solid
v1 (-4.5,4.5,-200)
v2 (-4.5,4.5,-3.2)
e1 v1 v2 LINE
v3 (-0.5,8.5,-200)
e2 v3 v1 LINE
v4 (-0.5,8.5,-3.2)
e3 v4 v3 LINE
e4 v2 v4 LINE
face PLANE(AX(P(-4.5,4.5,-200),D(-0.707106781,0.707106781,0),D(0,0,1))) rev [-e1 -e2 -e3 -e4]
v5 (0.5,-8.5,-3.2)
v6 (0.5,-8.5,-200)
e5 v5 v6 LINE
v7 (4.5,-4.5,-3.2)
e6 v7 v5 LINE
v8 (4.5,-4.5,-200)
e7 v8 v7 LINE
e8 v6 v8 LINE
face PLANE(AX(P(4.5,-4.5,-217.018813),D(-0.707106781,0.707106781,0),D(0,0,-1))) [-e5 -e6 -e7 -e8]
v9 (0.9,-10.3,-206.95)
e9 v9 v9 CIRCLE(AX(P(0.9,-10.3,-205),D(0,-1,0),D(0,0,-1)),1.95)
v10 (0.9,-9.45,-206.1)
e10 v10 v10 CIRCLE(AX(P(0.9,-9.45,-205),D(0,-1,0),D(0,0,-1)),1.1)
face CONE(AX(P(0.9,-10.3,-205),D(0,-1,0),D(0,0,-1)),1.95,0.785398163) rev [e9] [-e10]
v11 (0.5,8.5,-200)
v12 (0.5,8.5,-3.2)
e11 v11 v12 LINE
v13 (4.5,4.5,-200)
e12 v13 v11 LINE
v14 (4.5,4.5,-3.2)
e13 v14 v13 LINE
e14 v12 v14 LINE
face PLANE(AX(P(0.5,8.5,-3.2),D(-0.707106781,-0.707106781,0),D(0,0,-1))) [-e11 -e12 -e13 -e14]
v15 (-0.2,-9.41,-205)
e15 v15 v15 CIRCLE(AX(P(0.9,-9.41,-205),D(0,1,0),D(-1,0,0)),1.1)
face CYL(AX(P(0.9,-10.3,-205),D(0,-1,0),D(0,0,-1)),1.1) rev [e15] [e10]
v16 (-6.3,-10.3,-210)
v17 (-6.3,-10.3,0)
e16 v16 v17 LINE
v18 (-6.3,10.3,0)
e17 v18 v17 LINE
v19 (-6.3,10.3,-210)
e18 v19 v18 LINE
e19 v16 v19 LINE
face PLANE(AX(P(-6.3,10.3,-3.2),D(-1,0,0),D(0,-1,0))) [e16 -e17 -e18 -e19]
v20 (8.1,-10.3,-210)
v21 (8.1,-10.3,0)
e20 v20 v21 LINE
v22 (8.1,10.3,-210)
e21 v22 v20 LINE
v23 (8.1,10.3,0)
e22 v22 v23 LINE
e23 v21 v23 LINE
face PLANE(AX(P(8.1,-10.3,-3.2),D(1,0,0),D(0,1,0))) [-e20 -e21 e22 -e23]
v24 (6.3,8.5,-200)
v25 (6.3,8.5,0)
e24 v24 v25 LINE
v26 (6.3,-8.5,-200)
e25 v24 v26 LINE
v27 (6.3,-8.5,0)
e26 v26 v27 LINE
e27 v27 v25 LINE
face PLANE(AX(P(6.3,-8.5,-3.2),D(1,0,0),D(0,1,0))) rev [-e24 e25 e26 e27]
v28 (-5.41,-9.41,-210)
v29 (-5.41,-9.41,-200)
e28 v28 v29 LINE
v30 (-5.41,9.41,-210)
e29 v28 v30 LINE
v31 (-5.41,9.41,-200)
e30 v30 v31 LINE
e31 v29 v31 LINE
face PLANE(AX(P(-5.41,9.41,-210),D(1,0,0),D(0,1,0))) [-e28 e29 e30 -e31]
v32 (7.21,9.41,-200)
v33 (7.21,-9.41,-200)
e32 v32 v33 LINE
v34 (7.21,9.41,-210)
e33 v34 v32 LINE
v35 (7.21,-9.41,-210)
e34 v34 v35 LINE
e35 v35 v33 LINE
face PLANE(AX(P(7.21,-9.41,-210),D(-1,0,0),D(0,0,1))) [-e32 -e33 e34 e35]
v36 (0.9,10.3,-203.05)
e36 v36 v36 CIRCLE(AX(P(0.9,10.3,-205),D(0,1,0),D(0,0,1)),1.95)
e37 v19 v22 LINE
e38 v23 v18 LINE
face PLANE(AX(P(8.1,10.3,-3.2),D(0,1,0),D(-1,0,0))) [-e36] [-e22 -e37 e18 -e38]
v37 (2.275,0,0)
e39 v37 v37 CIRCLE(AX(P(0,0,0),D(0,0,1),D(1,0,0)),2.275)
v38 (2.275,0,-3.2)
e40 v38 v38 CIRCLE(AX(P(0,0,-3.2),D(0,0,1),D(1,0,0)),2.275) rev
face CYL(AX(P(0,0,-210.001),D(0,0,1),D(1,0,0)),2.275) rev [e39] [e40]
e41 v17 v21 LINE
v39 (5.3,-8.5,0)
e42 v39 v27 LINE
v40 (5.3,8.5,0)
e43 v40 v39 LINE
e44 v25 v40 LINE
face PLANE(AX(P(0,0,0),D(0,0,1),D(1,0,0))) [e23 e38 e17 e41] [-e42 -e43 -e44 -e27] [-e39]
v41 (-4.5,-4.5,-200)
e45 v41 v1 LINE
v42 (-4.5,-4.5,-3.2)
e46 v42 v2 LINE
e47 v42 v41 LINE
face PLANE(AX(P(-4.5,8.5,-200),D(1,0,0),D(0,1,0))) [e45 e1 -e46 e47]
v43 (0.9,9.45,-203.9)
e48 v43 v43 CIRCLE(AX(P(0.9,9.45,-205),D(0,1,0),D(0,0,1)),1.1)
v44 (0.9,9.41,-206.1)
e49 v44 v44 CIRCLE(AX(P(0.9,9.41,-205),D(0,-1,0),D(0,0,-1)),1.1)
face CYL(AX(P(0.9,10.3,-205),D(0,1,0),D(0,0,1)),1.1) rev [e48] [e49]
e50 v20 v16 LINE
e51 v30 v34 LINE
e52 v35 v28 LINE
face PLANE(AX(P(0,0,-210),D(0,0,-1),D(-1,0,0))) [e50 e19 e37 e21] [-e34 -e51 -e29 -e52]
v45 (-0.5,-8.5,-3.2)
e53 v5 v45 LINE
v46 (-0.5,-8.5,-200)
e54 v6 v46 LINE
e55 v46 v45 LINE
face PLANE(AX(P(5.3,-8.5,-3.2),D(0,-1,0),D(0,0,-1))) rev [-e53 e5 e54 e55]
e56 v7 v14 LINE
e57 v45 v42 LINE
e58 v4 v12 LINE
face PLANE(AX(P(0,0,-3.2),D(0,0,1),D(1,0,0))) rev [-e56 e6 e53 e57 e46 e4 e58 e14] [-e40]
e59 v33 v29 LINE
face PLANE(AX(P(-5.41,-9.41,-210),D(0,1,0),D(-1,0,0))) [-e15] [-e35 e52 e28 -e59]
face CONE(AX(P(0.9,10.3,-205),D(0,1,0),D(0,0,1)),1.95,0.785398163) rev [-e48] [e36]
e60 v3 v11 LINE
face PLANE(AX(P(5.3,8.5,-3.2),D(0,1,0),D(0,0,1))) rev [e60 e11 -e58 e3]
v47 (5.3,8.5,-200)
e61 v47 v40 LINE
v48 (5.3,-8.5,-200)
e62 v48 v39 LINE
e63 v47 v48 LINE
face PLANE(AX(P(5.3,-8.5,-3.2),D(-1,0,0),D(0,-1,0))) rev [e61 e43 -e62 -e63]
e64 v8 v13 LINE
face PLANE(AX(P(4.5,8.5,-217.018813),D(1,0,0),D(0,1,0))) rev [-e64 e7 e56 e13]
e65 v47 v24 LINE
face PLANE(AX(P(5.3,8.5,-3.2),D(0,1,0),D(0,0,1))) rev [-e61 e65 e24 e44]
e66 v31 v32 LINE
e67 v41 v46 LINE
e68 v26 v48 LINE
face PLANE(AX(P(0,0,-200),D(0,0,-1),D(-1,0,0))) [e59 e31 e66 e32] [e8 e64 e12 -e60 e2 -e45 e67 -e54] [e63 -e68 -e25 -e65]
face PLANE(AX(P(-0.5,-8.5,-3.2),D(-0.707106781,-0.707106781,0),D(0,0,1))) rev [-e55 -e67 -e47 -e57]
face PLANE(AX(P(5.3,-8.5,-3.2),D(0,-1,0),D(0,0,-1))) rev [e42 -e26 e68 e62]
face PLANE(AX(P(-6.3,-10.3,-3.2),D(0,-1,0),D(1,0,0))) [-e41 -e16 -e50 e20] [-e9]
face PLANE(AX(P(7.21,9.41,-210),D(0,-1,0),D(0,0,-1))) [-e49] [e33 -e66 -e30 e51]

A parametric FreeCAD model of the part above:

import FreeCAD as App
import Part
import Sketcher
from FreeCAD import Vector
Q = App.Units.Quantity


def edges_at(feature, points):
    """Names of the edges that pass closest to the given points."""
    edges = feature.Shape.Edges
    near = lambda p: min(range(len(edges)), key=lambda i: edges[i].distToShape(Part.Vertex(*p))[0])
    return sorted({f"Edge{near(p) + 1}" for p in points})

doc = App.newDocument("Part")
body = doc.addObject("PartDesign::Body", "Body")

# Sketch on XY plane
sketch1 = body.newObject("Sketcher::SketchObject", "Sketch")
sketch1.AttachmentSupport = (doc.getObject("XY_Plane"), [""])
sketch1.MapMode = "FlatFace"
sketch1.addGeometry(Part.LineSegment(Vector(-6.3, 10.3, 0), Vector(-6.3, -10.3, 0)), False)
sketch1.addGeometry(Part.LineSegment(Vector(-6.3, -10.3, 0), Vector(8.1, -10.3, 0)), False)
sketch1.addGeometry(Part.LineSegment(Vector(8.1, -10.3, 0), Vector(8.1, 10.3, 0)), False)
sketch1.addGeometry(Part.LineSegment(Vector(8.1, 10.3, 0), Vector(-6.3, 10.3, 0)), False)
sketch1.addGeometry(Part.LineSegment(Vector(6.3, -8.5, 0), Vector(5.3, -8.5, 0)), False)
sketch1.addGeometry(Part.LineSegment(Vector(5.3, -8.5, 0), Vector(5.3, 8.5, 0)), False)
sketch1.addGeometry(Part.LineSegment(Vector(5.3, 8.5, 0), Vector(6.3, 8.5, 0)), False)
sketch1.addGeometry(Part.LineSegment(Vector(6.3, 8.5, 0), Vector(6.3, -8.5, 0)), False)
sketch1.addConstraint(Sketcher.Constraint("Coincident", 0, 2, 1, 1))
sketch1.addConstraint(Sketcher.Constraint("Coincident", 1, 2, 2, 1))
sketch1.addConstraint(Sketcher.Constraint("Coincident", 2, 2, 3, 1))
sketch1.addConstraint(Sketcher.Constraint("Coincident", 3, 2, 0, 1))
sketch1.addConstraint(Sketcher.Constraint("Coincident", 4, 2, 5, 1))
sketch1.addConstraint(Sketcher.Constraint("Coincident", 5, 2, 6, 1))
sketch1.addConstraint(Sketcher.Constraint("Coincident", 6, 2, 7, 1))
sketch1.addConstraint(Sketcher.Constraint("Coincident", 7, 2, 4, 1))
sketch1.addConstraint(Sketcher.Constraint("Vertical", 0))
sketch1.addConstraint(Sketcher.Constraint("Horizontal", 1))
sketch1.addConstraint(Sketcher.Constraint("Vertical", 2))
sketch1.addConstraint(Sketcher.Constraint("Horizontal", 3))
sketch1.addConstraint(Sketcher.Constraint("Horizontal", 4))
sketch1.addConstraint(Sketcher.Constraint("Vertical", 5))
sketch1.addConstraint(Sketcher.Constraint("Horizontal", 6))
sketch1.addConstraint(Sketcher.Constraint("Vertical", 7))
sketch1.addConstraint(Sketcher.Constraint("DistanceX", 4, 2, 4, 1, Q("1 mm")))
sketch1.addConstraint(Sketcher.Constraint("DistanceY", 5, 1, 5, 2, Q("17 mm")))
sketch1.addConstraint(Sketcher.Constraint("DistanceX", 1, 1, 1, 2, Q("14.4 mm")))
sketch1.addConstraint(Sketcher.Constraint("DistanceY", 0, 2, 0, 1, Q("20.6 mm")))
sketch1.addConstraint(Sketcher.Constraint("DistanceX", 0, 2, -1, 1, Q("6.3 mm")))
sketch1.addConstraint(Sketcher.Constraint("DistanceY", 0, 2, -1, 1, Q("10.3 mm")))
sketch1.addConstraint(Sketcher.Constraint("DistanceX", -1, 1, 4, 2, Q("5.3 mm")))
sketch1.addConstraint(Sketcher.Constraint("DistanceY", 4, 2, -1, 1, Q("8.5 mm")))
pad1 = body.newObject("PartDesign::Pad", "Pad")
pad1.Profile = sketch1
pad1.Length = 3.2
pad1.Reversed = True

# Sketch on XY plane
sketch2 = body.newObject("Sketcher::SketchObject", "Sketch001")
sketch2.AttachmentSupport = (doc.getObject("XY_Plane"), [""])
sketch2.MapMode = "FlatFace"
sketch2.AttachmentOffset = App.Placement(Vector(0, 0, -3.2), App.Rotation())
sketch2.addGeometry(Part.LineSegment(Vector(8, 10, 0), Vector(8, -10, 0)), False)
sketch2.addGeometry(Part.LineSegment(Vector(8, -10, 0), Vector(-6, -10, 0)), False)
sketch2.addGeometry(Part.LineSegment(Vector(-6, -10, 0), Vector(-6, 10, 0)), False)
sketch2.addGeometry(Part.LineSegment(Vector(-6, 10, 0), Vector(8, 10, 0)), False)
sketch2.addGeometry(Part.LineSegment(Vector(-4, -8, 0), Vector(6, -8, 0)), False)
sketch2.addGeometry(Part.LineSegment(Vector(6, -8, 0), Vector(6, 8, 0)), False)
sketch2.addGeometry(Part.LineSegment(Vector(6, 8, 0), Vector(-4, 8, 0)), False)
sketch2.addGeometry(Part.LineSegment(Vector(-4, 8, 0), Vector(-4, -8, 0)), False)
sketch2.addConstraint(Sketcher.Constraint("Coincident", 0, 2, 1, 1))
sketch2.addConstraint(Sketcher.Constraint("Coincident", 1, 2, 2, 1))
sketch2.addConstraint(Sketcher.Constraint("Coincident", 2, 2, 3, 1))
sketch2.addConstraint(Sketcher.Constraint("Coincident", 3, 2, 0, 1))
sketch2.addConstraint(Sketcher.Constraint("Coincident", 4, 2, 5, 1))
sketch2.addConstraint(Sketcher.Constraint("Coincident", 5, 2, 6, 1))
sketch2.addConstraint(Sketcher.Constraint("Coincident", 6, 2, 7, 1))
sketch2.addConstraint(Sketcher.Constraint("Coincident", 7, 2, 4, 1))
sketch2.addConstraint(Sketcher.Constraint("Vertical", 0))
sketch2.addConstraint(Sketcher.Constraint("Horizontal", 1))
sketch2.addConstraint(Sketcher.Constraint("Vertical", 2))
sketch2.addConstraint(Sketcher.Constraint("Horizontal", 3))
sketch2.addConstraint(Sketcher.Constraint("Horizontal", 4))
sketch2.addConstraint(Sketcher.Constraint("Vertical", 5))
sketch2.addConstraint(Sketcher.Constraint("Horizontal", 6))
sketch2.addConstraint(Sketcher.Constraint("Vertical", 7))
sketch2.addConstraint(Sketcher.Constraint("DistanceY", 5, 1, 5, 2, Q("17 mm")))
sketch2.addConstraint(Sketcher.Constraint("DistanceX", 1, 2, 1, 1, Q("14.4 mm")))
sketch2.addConstraint(Sketcher.Constraint("DistanceX", 4, 1, 4, 2, Q("10.8 mm")))
sketch2.addConstraint(Sketcher.Constraint("DistanceY", 0, 2, 0, 1, Q("20.6 mm")))
sketch2.addConstraint(Sketcher.Constraint("DistanceX", -1, 1, 0, 2, Q("8.1 mm")))
sketch2.addConstraint(Sketcher.Constraint("DistanceY", 0, 2, -1, 1, Q("10.3 mm")))
sketch2.addConstraint(Sketcher.Constraint("DistanceX", -1, 1, 4, 2, Q("6.3 mm")))
sketch2.addConstraint(Sketcher.Constraint("DistanceY", 4, 2, -1, 1, Q("8.5 mm")))
pad2 = body.newObject("PartDesign::Pad", "Pad001")
pad2.Profile = sketch2
pad2.Length = 196.8
pad2.Reversed = True

# Sketch on XY plane
sketch3 = body.newObject("Sketcher::SketchObject", "Sketch002")
sketch3.AttachmentSupport = (doc.getObject("XY_Plane"), [""])
sketch3.MapMode = "FlatFace"
sketch3.AttachmentOffset = App.Placement(Vector(0, 0, -200), App.Rotation())
sketch3.addGeometry(Part.LineSegment(Vector(8, 10, 0), Vector(8, -10, 0)), False)
sketch3.addGeometry(Part.LineSegment(Vector(8, -10, 0), Vector(-6, -10, 0)), False)
sketch3.addGeometry(Part.LineSegment(Vector(-6, -10, 0), Vector(-6, 10, 0)), False)
sketch3.addGeometry(Part.LineSegment(Vector(-6, 10, 0), Vector(8, 10, 0)), False)
sketch3.addGeometry(Part.LineSegment(Vector(-5, -9, 0), Vector(7, -9, 0)), False)
sketch3.addGeometry(Part.LineSegment(Vector(7, -9, 0), Vector(7, 9, 0)), False)
sketch3.addGeometry(Part.LineSegment(Vector(7, 9, 0), Vector(-5, 9, 0)), False)
sketch3.addGeometry(Part.LineSegment(Vector(-5, 9, 0), Vector(-5, -9, 0)), False)
sketch3.addConstraint(Sketcher.Constraint("Coincident", 0, 2, 1, 1))
sketch3.addConstraint(Sketcher.Constraint("Coincident", 1, 2, 2, 1))
sketch3.addConstraint(Sketcher.Constraint("Coincident", 2, 2, 3, 1))
sketch3.addConstraint(Sketcher.Constraint("Coincident", 3, 2, 0, 1))
sketch3.addConstraint(Sketcher.Constraint("Coincident", 4, 2, 5, 1))
sketch3.addConstraint(Sketcher.Constraint("Coincident", 5, 2, 6, 1))
sketch3.addConstraint(Sketcher.Constraint("Coincident", 6, 2, 7, 1))
sketch3.addConstraint(Sketcher.Constraint("Coincident", 7, 2, 4, 1))
sketch3.addConstraint(Sketcher.Constraint("Vertical", 0))
sketch3.addConstraint(Sketcher.Constraint("Horizontal", 1))
sketch3.addConstraint(Sketcher.Constraint("Vertical", 2))
sketch3.addConstraint(Sketcher.Constraint("Horizontal", 3))
sketch3.addConstraint(Sketcher.Constraint("Horizontal", 4))
sketch3.addConstraint(Sketcher.Constraint("Vertical", 5))
sketch3.addConstraint(Sketcher.Constraint("Horizontal", 6))
sketch3.addConstraint(Sketcher.Constraint("Vertical", 7))
sketch3.addConstraint(Sketcher.Constraint("DistanceX", 1, 2, 1, 1, Q("14.4 mm")))
sketch3.addConstraint(Sketcher.Constraint("DistanceY", 0, 2, 0, 1, Q("20.6 mm")))
sketch3.addConstraint(Sketcher.Constraint("DistanceX", 4, 1, 4, 2, Q("12.62 mm")))
sketch3.addConstraint(Sketcher.Constraint("DistanceY", 5, 1, 5, 2, Q("18.82 mm")))
sketch3.addConstraint(Sketcher.Constraint("DistanceX", -1, 1, 0, 2, Q("8.1 mm")))
sketch3.addConstraint(Sketcher.Constraint("DistanceY", 0, 2, -1, 1, Q("10.3 mm")))
sketch3.addConstraint(Sketcher.Constraint("DistanceX", -1, 1, 4, 2, Q("7.21 mm")))
sketch3.addConstraint(Sketcher.Constraint("DistanceY", 4, 2, -1, 1, Q("9.41 mm")))
pad3 = body.newObject("PartDesign::Pad", "Pad002")
pad3.Profile = sketch3
pad3.Length = 10
pad3.Reversed = True

# Sketch on XY plane
sketch4 = body.newObject("Sketcher::SketchObject", "Sketch003")
sketch4.AttachmentSupport = (doc.getObject("XY_Plane"), [""])
sketch4.MapMode = "FlatFace"
sketch4.AttachmentOffset = App.Placement(Vector(0, 0, -3.2), App.Rotation())
sketch4.addGeometry(Part.LineSegment(Vector(5.3, 8.5, 0), Vector(5.3, -8.5, 0)), False)
sketch4.addGeometry(Part.LineSegment(Vector(5.3, -8.5, 0), Vector(4.5, -8.5, 0)), False)
sketch4.addGeometry(Part.LineSegment(Vector(4.5, -8.5, 0), Vector(4.5, 8.5, 0)), False)
sketch4.addGeometry(Part.LineSegment(Vector(4.5, 8.5, 0), Vector(5.3, 8.5, 0)), False)
sketch4.addConstraint(Sketcher.Constraint("Coincident", 0, 2, 1, 1))
sketch4.addConstraint(Sketcher.Constraint("Coincident", 1, 2, 2, 1))
sketch4.addConstraint(Sketcher.Constraint("Coincident", 2, 2, 3, 1))
sketch4.addConstraint(Sketcher.Constraint("Coincident", 3, 2, 0, 1))
sketch4.addConstraint(Sketcher.Constraint("Vertical", 0))
sketch4.addConstraint(Sketcher.Constraint("Horizontal", 1))
sketch4.addConstraint(Sketcher.Constraint("Vertical", 2))
sketch4.addConstraint(Sketcher.Constraint("Horizontal", 3))
sketch4.addConstraint(Sketcher.Constraint("DistanceY", 0, 2, 0, 1, Q("17 mm")))
sketch4.addConstraint(Sketcher.Constraint("DistanceX", 1, 2, 1, 1, Q("0.8 mm")))
sketch4.addConstraint(Sketcher.Constraint("DistanceX", -1, 1, 0, 2, Q("5.3 mm")))
sketch4.addConstraint(Sketcher.Constraint("DistanceY", 0, 2, -1, 1, Q("8.5 mm")))
pad4 = body.newObject("PartDesign::Pad", "Pad003")
pad4.Profile = sketch4
pad4.Length = 196.8
pad4.Reversed = True

# Sketch on XY plane
sketch5 = body.newObject("Sketcher::SketchObject", "Sketch004")
sketch5.AttachmentSupport = (doc.getObject("XY_Plane"), [""])
sketch5.MapMode = "FlatFace"
sketch5.addGeometry(Part.Circle(Vector(0, 0, 0), Vector(0, 0, 1), 2.3), False)
sketch5.addConstraint(Sketcher.Constraint("Coincident", 0, 3, -1, 1))
sketch5.addConstraint(Sketcher.Constraint("Diameter", 0, Q("4.55 mm")))
pocket1 = body.newObject("PartDesign::Pocket", "Pocket")
pocket1.Profile = sketch5
pocket1.Type = "UpToFirst"

# Sketch on YZ plane
sketch6 = body.newObject("Sketcher::SketchObject", "Sketch005")
sketch6.AttachmentSupport = (doc.getObject("YZ_Plane"), [""])
sketch6.MapMode = "FlatFace"
sketch6.AttachmentOffset = App.Placement(Vector(0, 0, 0.9), App.Rotation())
sketch6.addGeometry(Part.LineSegment(Vector(-9.41, -205, 0), Vector(-10.3, -205, 0)), False)
sketch6.addGeometry(Part.LineSegment(Vector(-10.3, -205, 0), Vector(-10.3, -206.95, 0)), False)
sketch6.addGeometry(Part.LineSegment(Vector(-10.3, -206.95, 0), Vector(-9.45, -206.1, 0)), False)
sketch6.addGeometry(Part.LineSegment(Vector(-9.45, -206.1, 0), Vector(-9.41, -206.1, 0)), False)
sketch6.addGeometry(Part.LineSegment(Vector(-9.41, -206.1, 0), Vector(-9.41, -205, 0)), False)
sketch6.addGeometry(Part.LineSegment(Vector(-10.3, -205, 0), Vector(-9.41, -205, 0)), True)  # axis
sketch6.addConstraint(Sketcher.Constraint("Coincident", 0, 2, 1, 1))
sketch6.addConstraint(Sketcher.Constraint("Coincident", 1, 2, 2, 1))
sketch6.addConstraint(Sketcher.Constraint("Coincident", 2, 2, 3, 1))
sketch6.addConstraint(Sketcher.Constraint("Coincident", 3, 2, 4, 1))
sketch6.addConstraint(Sketcher.Constraint("Coincident", 4, 2, 0, 1))
sketch6.addConstraint(Sketcher.Constraint("Horizontal", 0))
sketch6.addConstraint(Sketcher.Constraint("Vertical", 1))
sketch6.addConstraint(Sketcher.Constraint("Horizontal", 3))
sketch6.addConstraint(Sketcher.Constraint("Vertical", 4))
sketch6.addConstraint(Sketcher.Constraint("Horizontal", 5))
sketch6.addConstraint(Sketcher.Constraint("Coincident", 5, 1, 0, 2))
sketch6.addConstraint(Sketcher.Constraint("Vertical", 3, 2, 5, 2))
sketch6.addConstraint(Sketcher.Constraint("Angle", 2, Q("45 deg")))
sketch6.addConstraint(Sketcher.Constraint("DistanceY", 4, 1, 4, 2, Q("1.1 mm")))
sketch6.addConstraint(Sketcher.Constraint("DistanceY", 0, 2, -1, 1, Q("205 mm")))
sketch6.addConstraint(Sketcher.Constraint("DistanceX", 0, 2, 0, 1, Q("0.89 mm")))
sketch6.addConstraint(Sketcher.Constraint("DistanceX", 3, 1, 3, 2, Q("0.04 mm")))
sketch6.addConstraint(Sketcher.Constraint("DistanceX", 0, 2, -1, 1, Q("10.3 mm")))
groove = body.newObject("PartDesign::Groove", "Groove")
groove.Profile = sketch6
groove.ReferenceAxis = (sketch6, ["Axis0"])
groove.Angle = 360

# Sketch on YZ plane
sketch7 = body.newObject("Sketcher::SketchObject", "Sketch006")
sketch7.AttachmentSupport = (doc.getObject("YZ_Plane"), [""])
sketch7.MapMode = "FlatFace"
sketch7.AttachmentOffset = App.Placement(Vector(0, 0, 0.9), App.Rotation())
sketch7.addGeometry(Part.LineSegment(Vector(9.41, -205, 0), Vector(10.3, -205, 0)), False)
sketch7.addGeometry(Part.LineSegment(Vector(10.3, -205, 0), Vector(10.3, -203.05, 0)), False)
sketch7.addGeometry(Part.LineSegment(Vector(10.3, -203.05, 0), Vector(9.45, -203.9, 0)), False)
sketch7.addGeometry(Part.LineSegment(Vector(9.45, -203.9, 0), Vector(9.41, -203.9, 0)), False)
sketch7.addGeometry(Part.LineSegment(Vector(9.41, -203.9, 0), Vector(9.41, -205, 0)), False)
sketch7.addGeometry(Part.LineSegment(Vector(10.3, -205, 0), Vector(9.41, -205, 0)), True)  # axis
sketch7.addConstraint(Sketcher.Constraint("Coincident", 0, 2, 1, 1))
sketch7.addConstraint(Sketcher.Constraint("Coincident", 1, 2, 2, 1))
sketch7.addConstraint(Sketcher.Constraint("Coincident", 2, 2, 3, 1))
sketch7.addConstraint(Sketcher.Constraint("Coincident", 3, 2, 4, 1))
sketch7.addConstraint(Sketcher.Constraint("Coincident", 4, 2, 0, 1))
sketch7.addConstraint(Sketcher.Constraint("Horizontal", 0))
sketch7.addConstraint(Sketcher.Constraint("Vertical", 1))
sketch7.addConstraint(Sketcher.Constraint("Horizontal", 3))
sketch7.addConstraint(Sketcher.Constraint("Vertical", 4))
sketch7.addConstraint(Sketcher.Constraint("Horizontal", 5))
sketch7.addConstraint(Sketcher.Constraint("Coincident", 5, 1, 0, 2))
sketch7.addConstraint(Sketcher.Constraint("Vertical", 3, 2, 5, 2))
sketch7.addConstraint(Sketcher.Constraint("Angle", 2, Q("-135 deg")))
sketch7.addConstraint(Sketcher.Constraint("DistanceY", 4, 2, 4, 1, Q("1.1 mm")))
sketch7.addConstraint(Sketcher.Constraint("DistanceY", 0, 2, -1, 1, Q("205 mm")))
sketch7.addConstraint(Sketcher.Constraint("DistanceX", 0, 1, 0, 2, Q("0.89 mm")))
sketch7.addConstraint(Sketcher.Constraint("DistanceX", 3, 2, 3, 1, Q("0.04 mm")))
sketch7.addConstraint(Sketcher.Constraint("DistanceX", -1, 1, 0, 2, Q("10.3 mm")))
groove2 = body.newObject("PartDesign::Groove", "Groove001")
groove2.Profile = sketch7
groove2.ReferenceAxis = (sketch7, ["Axis0"])
groove2.Angle = 360
doc.recompute()

chamfer = body.newObject("PartDesign::Chamfer", "Chamfer")
chamfer.Base = (groove2, edges_at(groove2, [
    (-4.5, -8.5, -101.6),
    (-4.5, 8.5, -101.6),
    (4.5, 8.5, -101.6),
    (4.5, -8.5, -101.6),
]))
chamfer.Size = 4

doc.recompute()
